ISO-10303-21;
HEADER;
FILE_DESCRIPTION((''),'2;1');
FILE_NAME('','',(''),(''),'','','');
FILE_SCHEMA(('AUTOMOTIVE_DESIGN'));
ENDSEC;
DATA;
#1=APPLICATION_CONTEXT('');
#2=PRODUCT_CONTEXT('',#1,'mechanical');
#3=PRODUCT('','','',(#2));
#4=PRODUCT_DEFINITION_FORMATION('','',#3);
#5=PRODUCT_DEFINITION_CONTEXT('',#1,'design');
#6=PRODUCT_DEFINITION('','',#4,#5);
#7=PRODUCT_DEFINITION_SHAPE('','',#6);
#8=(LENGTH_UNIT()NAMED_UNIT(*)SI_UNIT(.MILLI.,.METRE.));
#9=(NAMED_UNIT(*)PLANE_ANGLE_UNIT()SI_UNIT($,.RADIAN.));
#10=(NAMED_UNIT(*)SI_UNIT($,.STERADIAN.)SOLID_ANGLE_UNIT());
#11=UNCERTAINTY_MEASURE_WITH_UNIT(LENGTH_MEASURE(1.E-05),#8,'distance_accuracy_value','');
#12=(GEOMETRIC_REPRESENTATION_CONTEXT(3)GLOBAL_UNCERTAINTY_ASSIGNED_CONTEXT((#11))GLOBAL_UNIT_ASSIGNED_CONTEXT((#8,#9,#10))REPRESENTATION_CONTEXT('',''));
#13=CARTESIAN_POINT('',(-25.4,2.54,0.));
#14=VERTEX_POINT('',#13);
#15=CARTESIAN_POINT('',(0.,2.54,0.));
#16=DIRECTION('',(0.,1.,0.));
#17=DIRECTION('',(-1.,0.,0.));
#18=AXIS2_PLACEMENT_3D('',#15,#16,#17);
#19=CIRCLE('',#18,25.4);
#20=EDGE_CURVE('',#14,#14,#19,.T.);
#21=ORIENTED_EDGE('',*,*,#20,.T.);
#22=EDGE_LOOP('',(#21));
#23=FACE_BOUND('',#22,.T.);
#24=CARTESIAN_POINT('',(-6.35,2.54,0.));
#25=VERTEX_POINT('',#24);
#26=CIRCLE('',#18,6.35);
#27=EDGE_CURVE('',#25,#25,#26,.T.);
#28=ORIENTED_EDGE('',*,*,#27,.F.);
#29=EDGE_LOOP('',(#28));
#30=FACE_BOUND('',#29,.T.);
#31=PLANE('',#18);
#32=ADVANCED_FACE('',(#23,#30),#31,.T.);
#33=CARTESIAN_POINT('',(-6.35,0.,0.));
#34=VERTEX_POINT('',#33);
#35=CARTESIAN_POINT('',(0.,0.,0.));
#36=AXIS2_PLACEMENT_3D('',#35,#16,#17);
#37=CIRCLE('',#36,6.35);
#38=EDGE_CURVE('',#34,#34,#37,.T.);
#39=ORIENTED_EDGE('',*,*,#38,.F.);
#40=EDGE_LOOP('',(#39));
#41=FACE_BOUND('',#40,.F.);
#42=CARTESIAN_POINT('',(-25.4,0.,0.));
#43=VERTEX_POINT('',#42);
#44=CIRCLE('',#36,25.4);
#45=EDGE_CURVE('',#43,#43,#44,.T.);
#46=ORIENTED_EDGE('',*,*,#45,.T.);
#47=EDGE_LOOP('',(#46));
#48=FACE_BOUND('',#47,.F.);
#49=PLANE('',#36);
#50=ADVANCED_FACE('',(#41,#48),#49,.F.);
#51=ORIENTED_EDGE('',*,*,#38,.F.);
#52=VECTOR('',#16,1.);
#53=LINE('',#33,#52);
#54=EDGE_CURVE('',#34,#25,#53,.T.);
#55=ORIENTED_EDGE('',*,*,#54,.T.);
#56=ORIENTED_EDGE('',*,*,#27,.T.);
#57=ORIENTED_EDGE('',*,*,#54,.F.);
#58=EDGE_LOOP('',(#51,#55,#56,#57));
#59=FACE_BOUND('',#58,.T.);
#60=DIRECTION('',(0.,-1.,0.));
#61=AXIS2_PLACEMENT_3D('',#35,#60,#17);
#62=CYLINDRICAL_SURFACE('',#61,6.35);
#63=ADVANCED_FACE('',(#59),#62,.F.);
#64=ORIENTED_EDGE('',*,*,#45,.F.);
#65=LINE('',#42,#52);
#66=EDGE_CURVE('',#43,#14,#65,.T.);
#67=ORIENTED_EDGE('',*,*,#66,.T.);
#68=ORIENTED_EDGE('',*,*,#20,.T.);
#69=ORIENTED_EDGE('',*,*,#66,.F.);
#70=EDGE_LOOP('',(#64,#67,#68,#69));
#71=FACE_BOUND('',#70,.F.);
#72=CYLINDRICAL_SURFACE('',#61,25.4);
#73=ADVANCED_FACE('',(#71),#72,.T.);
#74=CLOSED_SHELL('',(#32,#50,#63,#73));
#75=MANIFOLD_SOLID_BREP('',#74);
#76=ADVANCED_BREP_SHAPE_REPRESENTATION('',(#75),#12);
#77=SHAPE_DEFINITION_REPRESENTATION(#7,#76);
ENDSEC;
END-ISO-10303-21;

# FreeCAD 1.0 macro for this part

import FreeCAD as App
import Part
import Sketcher

V = App.Vector
Q = App.Units.Quantity

doc = App.newDocument("Part")
params = doc.addObject("Spreadsheet::Sheet", "Params")
for row, (alias, value) in enumerate([
    ("sketch1_diameter", "2 in"),
    ("sketch1_diameter2", "0.5 in"),
    ("pad1_length", "0.1 in"),
], start=1):
    params.set(f"A{row}", alias)
    params.set(f"B{row}", "=" + value)
    params.setAlias(f"B{row}", alias)

body = doc.addObject("PartDesign::Body", "Body")

sketch1 = body.newObject("Sketcher::SketchObject", "Sketch")
sketch1.AttachmentSupport = (doc.getObject("XZ_Plane"), [""])
sketch1.MapMode = "FlatFace"
sketch1.addGeometry([
    Part.Circle(V(0, 0, 0), V(0, 0, 1), 25),
    Part.Circle(V(0, 0, 0), V(0, 0, 1), 6),
], False)
sketch1.addConstraint([
    Sketcher.Constraint("Coincident", 0, 3, -1, 1),
    Sketcher.Constraint("Coincident", 1, 3, -1, 1),
    Sketcher.Constraint("Diameter", 0, Q("2 in")),
    Sketcher.Constraint("Diameter", 1, Q("0.5 in")),
])
sketch1.setExpression("Constraints[2]", "Params.sketch1_diameter")
sketch1.setExpression("Constraints[3]", "Params.sketch1_diameter2")
pad1 = body.newObject("PartDesign::Pad", "Pad")
pad1.Profile = sketch1
pad1.setExpression("Length", "Params.pad1_length")
pad1.Reversed = True

doc.recompute()
